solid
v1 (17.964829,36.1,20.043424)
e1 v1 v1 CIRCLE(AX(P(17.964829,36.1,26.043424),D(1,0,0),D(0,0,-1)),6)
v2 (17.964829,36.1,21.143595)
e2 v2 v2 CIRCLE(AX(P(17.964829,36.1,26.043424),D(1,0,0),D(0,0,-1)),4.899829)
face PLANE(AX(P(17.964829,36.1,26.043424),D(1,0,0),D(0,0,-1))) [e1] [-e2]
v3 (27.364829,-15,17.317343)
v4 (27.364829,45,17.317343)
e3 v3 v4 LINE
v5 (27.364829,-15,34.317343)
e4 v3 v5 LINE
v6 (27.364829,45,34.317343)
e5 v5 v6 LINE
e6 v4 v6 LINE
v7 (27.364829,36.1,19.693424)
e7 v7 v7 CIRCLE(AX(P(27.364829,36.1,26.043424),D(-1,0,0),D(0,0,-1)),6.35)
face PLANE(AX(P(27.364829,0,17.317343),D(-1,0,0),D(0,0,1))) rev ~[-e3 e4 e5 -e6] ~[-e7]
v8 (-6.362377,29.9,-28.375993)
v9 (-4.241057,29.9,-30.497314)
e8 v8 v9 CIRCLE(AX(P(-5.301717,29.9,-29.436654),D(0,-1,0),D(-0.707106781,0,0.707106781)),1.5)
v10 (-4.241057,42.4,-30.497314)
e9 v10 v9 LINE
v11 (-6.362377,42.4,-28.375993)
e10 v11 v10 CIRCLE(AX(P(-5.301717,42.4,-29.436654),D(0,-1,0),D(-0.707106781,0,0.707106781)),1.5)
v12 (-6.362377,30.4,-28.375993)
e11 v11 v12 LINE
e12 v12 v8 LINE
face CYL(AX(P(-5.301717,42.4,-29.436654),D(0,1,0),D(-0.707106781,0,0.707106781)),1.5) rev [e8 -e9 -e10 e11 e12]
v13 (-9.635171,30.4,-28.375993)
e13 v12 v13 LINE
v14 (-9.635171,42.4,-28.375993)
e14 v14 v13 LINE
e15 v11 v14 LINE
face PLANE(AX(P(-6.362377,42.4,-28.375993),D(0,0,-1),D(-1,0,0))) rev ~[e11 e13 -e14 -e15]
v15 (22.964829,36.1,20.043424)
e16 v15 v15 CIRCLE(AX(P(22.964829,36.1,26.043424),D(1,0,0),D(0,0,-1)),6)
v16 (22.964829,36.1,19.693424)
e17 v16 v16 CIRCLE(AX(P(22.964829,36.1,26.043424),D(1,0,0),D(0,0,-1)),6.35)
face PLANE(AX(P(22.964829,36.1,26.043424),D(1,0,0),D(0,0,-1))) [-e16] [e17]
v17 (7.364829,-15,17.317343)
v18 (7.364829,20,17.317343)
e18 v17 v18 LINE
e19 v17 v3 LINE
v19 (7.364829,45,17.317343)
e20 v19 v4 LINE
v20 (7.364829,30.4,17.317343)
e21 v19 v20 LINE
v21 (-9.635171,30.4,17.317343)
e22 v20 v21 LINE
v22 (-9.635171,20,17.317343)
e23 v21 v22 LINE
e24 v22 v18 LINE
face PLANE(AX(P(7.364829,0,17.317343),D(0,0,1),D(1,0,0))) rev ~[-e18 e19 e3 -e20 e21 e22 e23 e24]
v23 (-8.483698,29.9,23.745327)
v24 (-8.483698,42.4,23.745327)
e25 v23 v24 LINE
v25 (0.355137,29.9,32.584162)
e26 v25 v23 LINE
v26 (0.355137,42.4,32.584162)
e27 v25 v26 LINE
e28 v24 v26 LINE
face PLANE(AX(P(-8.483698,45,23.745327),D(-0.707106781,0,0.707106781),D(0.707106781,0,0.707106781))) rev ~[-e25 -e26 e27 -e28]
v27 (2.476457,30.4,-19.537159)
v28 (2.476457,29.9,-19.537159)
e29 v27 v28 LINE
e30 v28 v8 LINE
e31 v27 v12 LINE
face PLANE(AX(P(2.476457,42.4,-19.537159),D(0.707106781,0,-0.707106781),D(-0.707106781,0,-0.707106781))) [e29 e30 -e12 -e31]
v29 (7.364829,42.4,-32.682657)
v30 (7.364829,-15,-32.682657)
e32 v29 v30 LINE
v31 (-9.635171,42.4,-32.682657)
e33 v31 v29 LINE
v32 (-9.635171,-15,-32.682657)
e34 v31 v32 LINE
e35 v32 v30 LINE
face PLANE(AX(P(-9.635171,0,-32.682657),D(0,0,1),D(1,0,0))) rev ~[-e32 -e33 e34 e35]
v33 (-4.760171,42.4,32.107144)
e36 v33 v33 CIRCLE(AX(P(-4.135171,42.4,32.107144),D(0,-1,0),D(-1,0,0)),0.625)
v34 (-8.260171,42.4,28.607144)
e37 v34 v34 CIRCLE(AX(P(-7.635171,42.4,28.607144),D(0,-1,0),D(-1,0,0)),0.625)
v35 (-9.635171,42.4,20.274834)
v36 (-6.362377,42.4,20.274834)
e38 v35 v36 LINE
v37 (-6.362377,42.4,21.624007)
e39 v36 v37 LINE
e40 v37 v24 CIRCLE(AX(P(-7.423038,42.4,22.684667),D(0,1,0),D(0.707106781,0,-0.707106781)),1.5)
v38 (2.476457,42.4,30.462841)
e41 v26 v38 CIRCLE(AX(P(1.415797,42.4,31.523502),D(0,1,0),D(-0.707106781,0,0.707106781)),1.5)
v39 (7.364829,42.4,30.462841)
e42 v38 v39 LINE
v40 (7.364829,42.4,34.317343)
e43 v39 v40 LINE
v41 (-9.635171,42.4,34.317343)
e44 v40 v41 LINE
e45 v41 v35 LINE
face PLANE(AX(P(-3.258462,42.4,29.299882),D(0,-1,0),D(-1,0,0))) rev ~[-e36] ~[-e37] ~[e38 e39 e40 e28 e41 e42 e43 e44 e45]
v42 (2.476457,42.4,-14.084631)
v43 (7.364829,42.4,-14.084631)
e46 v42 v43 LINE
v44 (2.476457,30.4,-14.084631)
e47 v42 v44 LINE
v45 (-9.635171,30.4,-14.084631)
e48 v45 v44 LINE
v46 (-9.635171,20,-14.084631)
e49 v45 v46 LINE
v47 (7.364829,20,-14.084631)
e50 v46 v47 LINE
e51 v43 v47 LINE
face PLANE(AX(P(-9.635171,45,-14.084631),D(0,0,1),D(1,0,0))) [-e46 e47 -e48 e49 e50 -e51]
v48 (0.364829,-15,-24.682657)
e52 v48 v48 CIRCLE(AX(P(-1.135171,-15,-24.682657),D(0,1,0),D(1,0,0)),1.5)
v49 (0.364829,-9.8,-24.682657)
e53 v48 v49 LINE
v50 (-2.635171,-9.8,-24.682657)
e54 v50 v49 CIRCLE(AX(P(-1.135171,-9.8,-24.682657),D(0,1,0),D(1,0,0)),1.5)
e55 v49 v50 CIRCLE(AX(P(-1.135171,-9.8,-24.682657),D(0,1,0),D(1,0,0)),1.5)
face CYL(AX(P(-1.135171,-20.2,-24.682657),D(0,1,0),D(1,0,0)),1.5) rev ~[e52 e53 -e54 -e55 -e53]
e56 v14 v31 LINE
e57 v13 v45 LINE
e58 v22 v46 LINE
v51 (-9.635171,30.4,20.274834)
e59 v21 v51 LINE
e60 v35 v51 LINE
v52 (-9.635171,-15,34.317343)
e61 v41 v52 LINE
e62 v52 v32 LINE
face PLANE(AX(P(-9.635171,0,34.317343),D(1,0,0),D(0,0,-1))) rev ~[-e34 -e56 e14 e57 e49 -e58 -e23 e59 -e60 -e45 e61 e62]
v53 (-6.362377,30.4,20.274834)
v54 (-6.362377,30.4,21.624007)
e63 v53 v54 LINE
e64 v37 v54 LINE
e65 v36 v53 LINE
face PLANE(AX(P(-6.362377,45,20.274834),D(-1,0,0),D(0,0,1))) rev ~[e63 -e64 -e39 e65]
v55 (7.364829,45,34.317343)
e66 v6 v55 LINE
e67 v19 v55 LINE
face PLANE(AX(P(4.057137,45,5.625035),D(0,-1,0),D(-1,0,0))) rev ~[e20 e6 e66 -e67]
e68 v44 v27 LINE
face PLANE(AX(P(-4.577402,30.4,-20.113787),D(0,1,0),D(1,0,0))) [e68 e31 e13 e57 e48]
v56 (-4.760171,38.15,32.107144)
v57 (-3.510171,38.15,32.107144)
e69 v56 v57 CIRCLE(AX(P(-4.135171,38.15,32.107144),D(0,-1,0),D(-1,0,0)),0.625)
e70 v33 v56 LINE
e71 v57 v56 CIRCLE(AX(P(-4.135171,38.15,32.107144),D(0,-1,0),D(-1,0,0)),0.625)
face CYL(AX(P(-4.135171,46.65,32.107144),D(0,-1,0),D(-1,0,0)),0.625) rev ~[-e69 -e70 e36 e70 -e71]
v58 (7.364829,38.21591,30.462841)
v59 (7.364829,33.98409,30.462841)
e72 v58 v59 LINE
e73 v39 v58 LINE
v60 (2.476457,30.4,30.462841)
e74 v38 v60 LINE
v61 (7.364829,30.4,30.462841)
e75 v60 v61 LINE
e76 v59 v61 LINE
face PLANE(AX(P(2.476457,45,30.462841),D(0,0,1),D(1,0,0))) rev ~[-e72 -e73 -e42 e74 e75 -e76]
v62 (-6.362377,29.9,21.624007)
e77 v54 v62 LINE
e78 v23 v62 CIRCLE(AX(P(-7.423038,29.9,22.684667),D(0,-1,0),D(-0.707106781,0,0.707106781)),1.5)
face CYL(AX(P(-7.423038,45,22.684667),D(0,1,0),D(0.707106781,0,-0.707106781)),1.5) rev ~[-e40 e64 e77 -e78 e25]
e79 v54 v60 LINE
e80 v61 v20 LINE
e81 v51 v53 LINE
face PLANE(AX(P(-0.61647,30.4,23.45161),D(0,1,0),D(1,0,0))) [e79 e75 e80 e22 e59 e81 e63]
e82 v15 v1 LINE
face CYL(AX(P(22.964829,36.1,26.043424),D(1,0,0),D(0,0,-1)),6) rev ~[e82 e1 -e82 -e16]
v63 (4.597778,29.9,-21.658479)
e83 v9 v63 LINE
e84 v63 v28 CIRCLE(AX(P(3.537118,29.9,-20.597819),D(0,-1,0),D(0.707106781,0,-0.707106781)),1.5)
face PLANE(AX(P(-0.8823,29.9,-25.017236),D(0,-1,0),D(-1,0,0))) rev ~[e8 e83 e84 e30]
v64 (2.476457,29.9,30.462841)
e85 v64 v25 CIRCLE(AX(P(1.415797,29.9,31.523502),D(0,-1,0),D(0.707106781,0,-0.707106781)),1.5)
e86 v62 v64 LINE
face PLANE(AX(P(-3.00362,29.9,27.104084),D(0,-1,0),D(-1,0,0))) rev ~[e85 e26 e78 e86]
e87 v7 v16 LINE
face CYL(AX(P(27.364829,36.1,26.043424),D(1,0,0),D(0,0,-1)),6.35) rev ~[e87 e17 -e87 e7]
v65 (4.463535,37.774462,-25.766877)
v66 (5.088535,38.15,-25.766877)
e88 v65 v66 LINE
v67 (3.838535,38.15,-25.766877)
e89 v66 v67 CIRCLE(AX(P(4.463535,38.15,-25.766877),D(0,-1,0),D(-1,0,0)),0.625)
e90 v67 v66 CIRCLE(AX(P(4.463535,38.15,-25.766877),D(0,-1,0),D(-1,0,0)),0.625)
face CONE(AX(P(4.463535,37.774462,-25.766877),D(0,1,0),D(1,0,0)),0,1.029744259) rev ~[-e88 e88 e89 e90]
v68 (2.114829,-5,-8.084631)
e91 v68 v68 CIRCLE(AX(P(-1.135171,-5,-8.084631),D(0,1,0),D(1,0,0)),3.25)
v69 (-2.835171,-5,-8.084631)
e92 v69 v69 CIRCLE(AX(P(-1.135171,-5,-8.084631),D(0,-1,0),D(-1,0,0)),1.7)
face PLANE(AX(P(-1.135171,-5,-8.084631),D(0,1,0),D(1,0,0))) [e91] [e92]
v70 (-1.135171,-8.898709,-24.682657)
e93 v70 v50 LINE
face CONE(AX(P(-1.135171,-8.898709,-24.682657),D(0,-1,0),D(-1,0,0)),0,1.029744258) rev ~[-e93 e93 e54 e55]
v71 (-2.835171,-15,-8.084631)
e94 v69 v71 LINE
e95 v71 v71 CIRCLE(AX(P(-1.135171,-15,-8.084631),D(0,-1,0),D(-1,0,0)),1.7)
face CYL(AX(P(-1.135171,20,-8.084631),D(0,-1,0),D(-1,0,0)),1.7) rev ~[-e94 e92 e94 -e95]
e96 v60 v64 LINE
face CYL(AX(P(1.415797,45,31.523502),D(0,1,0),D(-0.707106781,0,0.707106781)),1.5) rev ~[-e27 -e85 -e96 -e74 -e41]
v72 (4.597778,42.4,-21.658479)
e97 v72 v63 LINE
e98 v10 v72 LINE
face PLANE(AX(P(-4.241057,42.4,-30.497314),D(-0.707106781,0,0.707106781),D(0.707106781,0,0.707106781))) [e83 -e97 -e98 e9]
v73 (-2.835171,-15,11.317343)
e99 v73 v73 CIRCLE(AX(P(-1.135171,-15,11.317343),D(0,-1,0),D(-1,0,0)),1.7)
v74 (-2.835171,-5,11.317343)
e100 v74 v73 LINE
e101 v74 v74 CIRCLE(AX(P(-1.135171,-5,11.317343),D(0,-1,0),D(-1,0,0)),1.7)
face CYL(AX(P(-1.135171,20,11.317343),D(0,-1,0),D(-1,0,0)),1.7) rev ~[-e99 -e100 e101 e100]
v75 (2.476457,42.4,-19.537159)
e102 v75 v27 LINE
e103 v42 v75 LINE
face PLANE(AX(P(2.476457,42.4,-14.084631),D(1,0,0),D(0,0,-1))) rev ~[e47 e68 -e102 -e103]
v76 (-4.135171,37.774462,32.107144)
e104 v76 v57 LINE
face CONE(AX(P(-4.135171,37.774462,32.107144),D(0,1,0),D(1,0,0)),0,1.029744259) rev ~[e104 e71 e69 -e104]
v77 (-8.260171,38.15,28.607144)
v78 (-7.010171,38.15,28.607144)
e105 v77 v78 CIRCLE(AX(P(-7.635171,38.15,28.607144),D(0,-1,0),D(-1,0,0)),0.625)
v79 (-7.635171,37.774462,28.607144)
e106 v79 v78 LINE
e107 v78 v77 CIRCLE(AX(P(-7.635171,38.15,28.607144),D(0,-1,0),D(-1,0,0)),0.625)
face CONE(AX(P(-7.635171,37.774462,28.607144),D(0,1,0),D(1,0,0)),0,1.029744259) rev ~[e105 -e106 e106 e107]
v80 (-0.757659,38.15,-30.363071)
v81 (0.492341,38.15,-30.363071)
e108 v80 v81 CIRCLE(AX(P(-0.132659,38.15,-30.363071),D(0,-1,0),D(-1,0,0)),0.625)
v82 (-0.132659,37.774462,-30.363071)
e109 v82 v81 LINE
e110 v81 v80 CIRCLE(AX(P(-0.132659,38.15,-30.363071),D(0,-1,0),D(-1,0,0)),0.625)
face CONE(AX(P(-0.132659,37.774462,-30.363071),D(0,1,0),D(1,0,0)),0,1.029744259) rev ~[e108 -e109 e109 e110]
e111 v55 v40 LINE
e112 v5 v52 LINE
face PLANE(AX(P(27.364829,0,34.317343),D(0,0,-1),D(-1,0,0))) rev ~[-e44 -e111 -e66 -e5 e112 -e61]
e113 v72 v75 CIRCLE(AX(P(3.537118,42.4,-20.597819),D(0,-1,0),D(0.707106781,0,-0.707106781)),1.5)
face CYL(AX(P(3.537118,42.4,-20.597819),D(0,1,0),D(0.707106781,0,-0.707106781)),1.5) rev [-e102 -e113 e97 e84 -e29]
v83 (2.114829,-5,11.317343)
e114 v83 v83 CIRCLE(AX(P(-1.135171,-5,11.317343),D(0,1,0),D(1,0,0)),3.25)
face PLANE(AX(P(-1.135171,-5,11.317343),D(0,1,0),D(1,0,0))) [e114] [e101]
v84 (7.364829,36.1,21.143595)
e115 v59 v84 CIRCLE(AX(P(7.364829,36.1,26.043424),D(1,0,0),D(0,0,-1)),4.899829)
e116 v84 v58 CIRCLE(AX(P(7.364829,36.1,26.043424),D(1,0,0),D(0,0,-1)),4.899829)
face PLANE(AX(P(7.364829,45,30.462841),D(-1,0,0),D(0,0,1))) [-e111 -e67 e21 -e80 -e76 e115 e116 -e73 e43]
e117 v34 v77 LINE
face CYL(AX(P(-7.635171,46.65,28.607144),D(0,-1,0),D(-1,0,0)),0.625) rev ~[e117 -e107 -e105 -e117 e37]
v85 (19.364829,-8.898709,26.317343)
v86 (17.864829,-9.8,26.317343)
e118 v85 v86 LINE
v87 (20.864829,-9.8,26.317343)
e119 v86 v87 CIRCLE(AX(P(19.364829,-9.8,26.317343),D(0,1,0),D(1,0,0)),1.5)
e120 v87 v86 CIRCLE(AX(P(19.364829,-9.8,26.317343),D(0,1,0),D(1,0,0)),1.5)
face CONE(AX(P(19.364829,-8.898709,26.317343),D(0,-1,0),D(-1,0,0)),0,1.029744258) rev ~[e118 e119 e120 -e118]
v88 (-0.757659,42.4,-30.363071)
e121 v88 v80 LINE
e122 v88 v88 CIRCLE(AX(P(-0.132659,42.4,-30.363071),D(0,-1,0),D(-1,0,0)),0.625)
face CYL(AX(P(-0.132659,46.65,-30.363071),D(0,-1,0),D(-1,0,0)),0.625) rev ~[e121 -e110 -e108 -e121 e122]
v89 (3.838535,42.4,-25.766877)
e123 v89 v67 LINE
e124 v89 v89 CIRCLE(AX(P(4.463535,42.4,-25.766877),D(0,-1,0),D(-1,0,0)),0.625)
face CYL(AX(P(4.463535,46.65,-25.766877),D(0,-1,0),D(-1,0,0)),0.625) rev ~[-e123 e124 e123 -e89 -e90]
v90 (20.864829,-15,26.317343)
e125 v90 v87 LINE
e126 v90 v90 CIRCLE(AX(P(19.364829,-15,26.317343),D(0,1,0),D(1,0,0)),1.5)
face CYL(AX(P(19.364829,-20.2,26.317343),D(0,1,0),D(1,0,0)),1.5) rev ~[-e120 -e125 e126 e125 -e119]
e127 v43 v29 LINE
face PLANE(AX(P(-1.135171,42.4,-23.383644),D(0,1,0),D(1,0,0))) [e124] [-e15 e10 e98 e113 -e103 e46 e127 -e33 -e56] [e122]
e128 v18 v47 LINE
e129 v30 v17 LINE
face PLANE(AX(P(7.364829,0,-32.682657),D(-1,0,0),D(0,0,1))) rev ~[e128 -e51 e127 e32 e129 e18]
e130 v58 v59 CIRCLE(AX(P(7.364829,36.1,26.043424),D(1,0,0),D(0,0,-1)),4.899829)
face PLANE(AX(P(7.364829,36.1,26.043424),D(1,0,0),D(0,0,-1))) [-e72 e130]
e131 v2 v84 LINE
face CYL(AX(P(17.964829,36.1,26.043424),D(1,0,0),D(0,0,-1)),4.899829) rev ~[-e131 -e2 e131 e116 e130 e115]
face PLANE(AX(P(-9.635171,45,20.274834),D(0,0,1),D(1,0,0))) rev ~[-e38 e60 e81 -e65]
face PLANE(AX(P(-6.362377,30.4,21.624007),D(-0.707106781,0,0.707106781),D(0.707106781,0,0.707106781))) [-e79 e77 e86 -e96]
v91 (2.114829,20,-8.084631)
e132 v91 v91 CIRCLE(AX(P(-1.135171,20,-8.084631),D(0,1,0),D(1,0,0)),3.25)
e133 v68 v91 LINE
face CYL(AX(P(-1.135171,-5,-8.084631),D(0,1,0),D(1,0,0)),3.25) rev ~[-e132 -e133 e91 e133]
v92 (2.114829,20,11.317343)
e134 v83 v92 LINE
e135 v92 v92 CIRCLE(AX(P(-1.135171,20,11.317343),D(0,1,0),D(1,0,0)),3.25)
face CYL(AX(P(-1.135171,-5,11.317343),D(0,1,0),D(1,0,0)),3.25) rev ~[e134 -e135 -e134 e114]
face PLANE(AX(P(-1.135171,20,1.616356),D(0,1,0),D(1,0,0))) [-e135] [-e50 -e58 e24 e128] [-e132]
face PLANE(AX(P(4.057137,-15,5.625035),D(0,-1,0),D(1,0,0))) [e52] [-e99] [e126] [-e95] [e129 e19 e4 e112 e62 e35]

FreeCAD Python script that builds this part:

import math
import FreeCAD as App
import Part
import Sketcher

V = App.Vector
Q = App.Units.Quantity


def add_polygon(sketch, points):
    """Adds a closed chain of lines whose ends are joined by coincident constraints."""
    first, n = sketch.GeometryCount, len(points)
    for a, b in zip(points, points[1:] + points[:1]):
        sketch.addGeometry(Part.LineSegment(App.Vector(*a, 0), App.Vector(*b, 0)), False)
    for i in range(n):
        sketch.addConstraint(Sketcher.Constraint("Coincident", first + i, 2, first + (i + 1) % n, 1))

doc = App.newDocument("Part")
params = doc.addObject("Spreadsheet::Sheet", "Params")
for row, (alias, value) in enumerate([
    ("sketch1_width", "37 mm"),
    ("sketch1_width2", "20 mm"),
    ("sketch1_height", "50 mm"),
    ("pad1_length", "45 mm"),
    ("sketch2_width", "17 mm"),
    ("pocket1_length", "25 mm"),
    ("sketch3_width", "37 mm"),
    ("sketch3_width2", "17 mm"),
    ("sketch3_height", "67 mm"),
    ("pad2_length", "15 mm"),
    ("sketch4_width", "17 mm"),
    ("pocket2_length", "2.6 mm"),
    ("sketch5_length", "12.5 mm"),
    ("pocket3_length", "12 mm"),
    ("sketch6_radius", "1.5 mm"),
    ("sketch6_width", "17 mm"),
    ("sketch6_length", "12.5 mm"),
    ("pocket4_length", "14.6 mm"),
    ("sketch7_diameter", "12.7 mm"),
    ("pocket5_length", "4.4 mm"),
    ("sketch8_diameter", "12 mm"),
    ("pocket6_length", "5 mm"),
    ("sketch9_diameter", "12.7 mm"),
    ("hole_diameter", "12.7 mm"),
    ("hole_depth", "3 mm"),
    ("sketch10_radius", "1.5 mm"),
    ("sketch10_length", "12.5 mm"),
    ("pocket7_length", "12.5 mm"),
    ("sketch11_radius", "1.5 mm"),
    ("sketch11_length", "12.5 mm"),
    ("pocket8_length", "0.5 mm"),
    ("sketch12_radius", "1.5 mm"),
    ("sketch12_width", "17 mm"),
    ("sketch12_length", "12.5 mm"),
    ("pocket9_length", "2.6 mm"),
    ("pocket10_length", "10.6 mm"),
    ("sketch14_diameter", "3.4 mm"),
    ("hole2_diameter", "3.4 mm"),
    ("hole2_depth", "35 mm"),
    ("hole2_cbore_diameter", "6.5 mm"),
    ("hole2_cbore_depth", "25 mm"),
    ("sketch15_diameter", "3 mm"),
    ("hole3_diameter", "3 mm"),
    ("hole3_depth", "5.2 mm"),
    ("sketch16_diameter", "1.25 mm"),
    ("hole4_diameter", "1.25 mm"),
    ("hole4_depth", "4.25 mm"),
    ("sketch17_diameter", "1.25 mm"),
    ("hole5_diameter", "1.25 mm"),
    ("hole5_depth", "4.25 mm"),
], start=1):
    params.set(f"A{row}", alias)
    params.set(f"B{row}", "=" + value)
    params.setAlias(f"B{row}", alias)

body = doc.addObject("PartDesign::Body", "Body")

# Sketch on XZ plane
sketch1 = body.newObject("Sketcher::SketchObject", "Sketch")
sketch1.AttachmentSupport = (doc.getObject("XZ_Plane"), [""])
sketch1.MapMode = "FlatFace"
add_polygon(sketch1, [(-10, 34), (27, 34), (27, 17), (7, 17), (7, -33), (-10, -33)])  # lines 0-5
sketch1.addConstraint(Sketcher.Constraint("Horizontal", 0))
sketch1.addConstraint(Sketcher.Constraint("Vertical", 1))
sketch1.addConstraint(Sketcher.Constraint("Horizontal", 2))
sketch1.addConstraint(Sketcher.Constraint("Vertical", 3))
sketch1.addConstraint(Sketcher.Constraint("Horizontal", 4))
sketch1.addConstraint(Sketcher.Constraint("Vertical", 5))
sketch1.addConstraint(Sketcher.Constraint("Equal", 4, 1))
sketch1.addConstraint(Sketcher.Constraint("DistanceX", 0, 1, 0, 2, Q("37 mm")))
sketch1.addConstraint(Sketcher.Constraint("DistanceX", 2, 2, 2, 1, Q("20 mm")))
sketch1.addConstraint(Sketcher.Constraint("DistanceY", 3, 2, 3, 1, Q("50 mm")))
sketch1.addConstraint(Sketcher.Constraint("DistanceX", -1, 1, 0, 2, Q("27.364829 mm")))
sketch1.addConstraint(Sketcher.Constraint("DistanceY", -1, 1, 0, 2, Q("34.317343 mm")))
sketch1.setExpression("Constraints[13]", "Params.sketch1_width")
sketch1.setExpression("Constraints[14]", "Params.sketch1_width2")
sketch1.setExpression("Constraints[15]", "Params.sketch1_height")
pad1 = body.newObject("PartDesign::Pad", "Pad")
pad1.Profile = sketch1
pad1.setExpression("Length", "Params.pad1_length")
pad1.Reversed = True

# Sketch on XZ plane
sketch2 = body.newObject("Sketcher::SketchObject", "Sketch001")
sketch2.AttachmentSupport = (doc.getObject("XZ_Plane"), [""])
sketch2.MapMode = "FlatFace"
sketch2.AttachmentOffset = App.Placement(V(0, 0, -45), App.Rotation())
add_polygon(sketch2, [(-10, -14), (-10, 17), (7, 17), (7, -14)])  # lines 0-3
sketch2.addConstraint(Sketcher.Constraint("Vertical", 0))
sketch2.addConstraint(Sketcher.Constraint("Horizontal", 1))
sketch2.addConstraint(Sketcher.Constraint("Vertical", 2))
sketch2.addConstraint(Sketcher.Constraint("Horizontal", 3))
sketch2.addConstraint(Sketcher.Constraint("DistanceX", 1, 1, 1, 2, Q("17 mm")))
sketch2.addConstraint(Sketcher.Constraint("DistanceY", 0, 1, 0, 2, Q("31.401974 mm")))
sketch2.addConstraint(Sketcher.Constraint("DistanceX", 0, 2, -1, 1, Q("9.635171 mm")))
sketch2.addConstraint(Sketcher.Constraint("DistanceY", 2, 2, -1, 1, Q("14.084631 mm")))
sketch2.setExpression("Constraints[8]", "Params.sketch2_width")
pocket1 = body.newObject("PartDesign::Pocket", "Pocket")
pocket1.Profile = sketch2
pocket1.setExpression("Length", "Params.pocket1_length")
pocket1.Reversed = True

# Sketch on XZ plane
sketch3 = body.newObject("Sketcher::SketchObject", "Sketch002")
sketch3.AttachmentSupport = (doc.getObject("XZ_Plane"), [""])
sketch3.MapMode = "FlatFace"
add_polygon(sketch3, [(27, 34), (-10, 34), (-10, -33), (7, -33), (7, 17), (27, 17)])  # lines 0-5
sketch3.addConstraint(Sketcher.Constraint("Horizontal", 0))
sketch3.addConstraint(Sketcher.Constraint("Vertical", 1))
sketch3.addConstraint(Sketcher.Constraint("Horizontal", 2))
sketch3.addConstraint(Sketcher.Constraint("Vertical", 3))
sketch3.addConstraint(Sketcher.Constraint("Horizontal", 4))
sketch3.addConstraint(Sketcher.Constraint("Vertical", 5))
sketch3.addConstraint(Sketcher.Constraint("Equal", 2, 5))
sketch3.addConstraint(Sketcher.Constraint("DistanceX", 0, 2, 0, 1, Q("37 mm")))
sketch3.addConstraint(Sketcher.Constraint("DistanceX", 2, 1, 2, 2, Q("17 mm")))
sketch3.addConstraint(Sketcher.Constraint("DistanceY", 1, 2, 1, 1, Q("67 mm")))
sketch3.addConstraint(Sketcher.Constraint("DistanceX", 0, 2, -1, 1, Q("9.635171 mm")))
sketch3.addConstraint(Sketcher.Constraint("DistanceY", -1, 1, 0, 2, Q("34.317343 mm")))
sketch3.setExpression("Constraints[13]", "Params.sketch3_width")
sketch3.setExpression("Constraints[14]", "Params.sketch3_width2")
sketch3.setExpression("Constraints[15]", "Params.sketch3_height")
pad2 = body.newObject("PartDesign::Pad", "Pad001")
pad2.Profile = sketch3
pad2.setExpression("Length", "Params.pad2_length")

# Sketch on XZ plane
sketch4 = body.newObject("Sketcher::SketchObject", "Sketch003")
sketch4.AttachmentSupport = (doc.getObject("XZ_Plane"), [""])
sketch4.MapMode = "FlatFace"
sketch4.AttachmentOffset = App.Placement(V(0, 0, -45), App.Rotation())
add_polygon(sketch4, [(-10, -33), (-10, -14), (7, -14), (7, -33)])  # lines 0-3
sketch4.addConstraint(Sketcher.Constraint("Vertical", 0))
sketch4.addConstraint(Sketcher.Constraint("Horizontal", 1))
sketch4.addConstraint(Sketcher.Constraint("Vertical", 2))
sketch4.addConstraint(Sketcher.Constraint("Horizontal", 3))
sketch4.addConstraint(Sketcher.Constraint("DistanceX", 1, 1, 1, 2, Q("17 mm")))
sketch4.addConstraint(Sketcher.Constraint("DistanceY", 0, 1, 0, 2, Q("18.598026 mm")))
sketch4.addConstraint(Sketcher.Constraint("DistanceX", 0, 2, -1, 1, Q("9.635171 mm")))
sketch4.addConstraint(Sketcher.Constraint("DistanceY", 0, 2, -1, 1, Q("14.084631 mm")))
sketch4.setExpression("Constraints[8]", "Params.sketch4_width")
pocket2 = body.newObject("PartDesign::Pocket", "Pocket001")
pocket2.Profile = sketch4
pocket2.setExpression("Length", "Params.pocket2_length")
pocket2.Reversed = True

# Sketch on XZ plane
sketch5 = body.newObject("Sketcher::SketchObject", "Sketch004")
sketch5.AttachmentSupport = (doc.getObject("XZ_Plane"), [""])
sketch5.MapMode = "FlatFace"
sketch5.AttachmentOffset = App.Placement(V(0, 0, -42.4), App.Rotation())
add_polygon(sketch5, [(-9.6, -28.4), (-9.6, -14.1), (2.5, -14.1), (2.5, -19.5), (-6.4, -28.4)])  # lines 0-4
sketch5.addConstraint(Sketcher.Constraint("Vertical", 0))
sketch5.addConstraint(Sketcher.Constraint("Horizontal", 1))
sketch5.addConstraint(Sketcher.Constraint("Vertical", 2))
sketch5.addConstraint(Sketcher.Constraint("Horizontal", 4))
sketch5.addConstraint(Sketcher.Constraint("Angle", 3, Q("-135 deg")))
sketch5.addConstraint(Sketcher.Constraint("Distance", 3, Q("12.5 mm")))
sketch5.addConstraint(Sketcher.Constraint("DistanceX", 1, 1, 1, 2, Q("12.111628 mm")))
sketch5.addConstraint(Sketcher.Constraint("DistanceY", 0, 1, 0, 2, Q("14.291362 mm")))
sketch5.addConstraint(Sketcher.Constraint("DistanceX", 0, 2, -1, 1, Q("9.635171 mm")))
sketch5.addConstraint(Sketcher.Constraint("DistanceY", 0, 2, -1, 1, Q("14.084631 mm")))
sketch5.setExpression("Constraints[10]", "Params.sketch5_length")
pocket3 = body.newObject("PartDesign::Pocket", "Pocket002")
pocket3.Profile = sketch5
pocket3.setExpression("Length", "Params.pocket3_length")
pocket3.Reversed = True

# Sketch on XZ plane
sketch6 = body.newObject("Sketcher::SketchObject", "Sketch005")
sketch6.AttachmentSupport = (doc.getObject("XZ_Plane"), [""])
sketch6.MapMode = "FlatFace"
sketch6.AttachmentOffset = App.Placement(V(0, 0, -45), App.Rotation())
sketch6.addGeometry(Part.LineSegment(V(2.5, 30.5, 0), V(7.4, 30.5, 0)), False)
sketch6.addGeometry(Part.LineSegment(V(7.4, 30.5, 0), V(7.4, 17.3, 0)), False)
sketch6.addGeometry(Part.LineSegment(V(7.4, 17.3, 0), V(-9.6, 17.3, 0)), False)
sketch6.addGeometry(Part.LineSegment(V(-9.6, 17.3, 0), V(-9.6, 20.3, 0)), False)
sketch6.addGeometry(Part.LineSegment(V(-9.6, 20.3, 0), V(-6.4, 20.3, 0)), False)
sketch6.addGeometry(Part.LineSegment(V(-6.4, 20.3, 0), V(-6.4, 21.6, 0)), False)
sketch6.addGeometry(Part.ArcOfCircle(Part.Circle(V(-7.4, 22.7, 0), V(0, 0, 1), 1.5), math.radians(135), math.radians(315)), False)
sketch6.addGeometry(Part.LineSegment(V(-8.5, 23.7, 0), V(0.4, 32.6, 0)), False)
sketch6.addGeometry(Part.ArcOfCircle(Part.Circle(V(1.4, 31.5, 0), V(0, 0, 1), 1.5), math.radians(-45), math.radians(135)), False)
sketch6.addConstraint(Sketcher.Constraint("Coincident", 0, 2, 1, 1))
sketch6.addConstraint(Sketcher.Constraint("Coincident", 1, 2, 2, 1))
sketch6.addConstraint(Sketcher.Constraint("Coincident", 2, 2, 3, 1))
sketch6.addConstraint(Sketcher.Constraint("Coincident", 3, 2, 4, 1))
sketch6.addConstraint(Sketcher.Constraint("Coincident", 4, 2, 5, 1))
sketch6.addConstraint(Sketcher.Constraint("Coincident", 5, 2, 6, 2))
sketch6.addConstraint(Sketcher.Constraint("Tangent", 6, 1, 7, 1))
sketch6.addConstraint(Sketcher.Constraint("Tangent", 7, 2, 8, 2))
sketch6.addConstraint(Sketcher.Constraint("Coincident", 8, 1, 0, 1))
sketch6.addConstraint(Sketcher.Constraint("Horizontal", 0))
sketch6.addConstraint(Sketcher.Constraint("Vertical", 1))
sketch6.addConstraint(Sketcher.Constraint("Horizontal", 2))
sketch6.addConstraint(Sketcher.Constraint("Vertical", 3))
sketch6.addConstraint(Sketcher.Constraint("Horizontal", 4))
sketch6.addConstraint(Sketcher.Constraint("Vertical", 5))
sketch6.addConstraint(Sketcher.Constraint("Equal", 6, 8))
sketch6.addConstraint(Sketcher.Constraint("Radius", 6, Q("1.5 mm")))
sketch6.addConstraint(Sketcher.Constraint("DistanceX", 2, 2, 2, 1, Q("17 mm")))
sketch6.addConstraint(Sketcher.Constraint("Angle", 7, Q("45 deg")))
sketch6.addConstraint(Sketcher.Constraint("Distance", 7, Q("12.5 mm")))
sketch6.addConstraint(Sketcher.Constraint("DistanceY", 1, 2, 1, 1, Q("13.145498 mm")))
sketch6.addConstraint(Sketcher.Constraint("DistanceX", 0, 1, 0, 2, Q("4.888372 mm")))
sketch6.addConstraint(Sketcher.Constraint("DistanceY", 3, 1, 3, 2, Q("2.957491 mm")))
sketch6.addConstraint(Sketcher.Constraint("DistanceY", -1, 1, 8, 3, Q("31.523502 mm")))
sketch6.addConstraint(Sketcher.Constraint("DistanceX", 4, 1, 4, 2, Q("3.272794 mm")))
sketch6.addConstraint(Sketcher.Constraint("DistanceX", -1, 1, 0, 2, Q("7.364829 mm")))
sketch6.addConstraint(Sketcher.Constraint("DistanceY", -1, 1, 0, 2, Q("30.462841 mm")))
sketch6.setExpression("Constraints[16]", "Params.sketch6_radius")
sketch6.setExpression("Constraints[17]", "Params.sketch6_width")
sketch6.setExpression("Constraints[19]", "Params.sketch6_length")
pocket4 = body.newObject("PartDesign::Pocket", "Pocket003")
pocket4.Profile = sketch6
pocket4.setExpression("Length", "Params.pocket4_length")
pocket4.Reversed = True

# Sketch on YZ plane
sketch7 = body.newObject("Sketcher::SketchObject", "Sketch006")
sketch7.AttachmentSupport = (doc.getObject("YZ_Plane"), [""])
sketch7.MapMode = "FlatFace"
sketch7.AttachmentOffset = App.Placement(V(0, 0, 27.364829), App.Rotation())
sketch7.addGeometry(Part.Circle(V(36, 26, 0), V(0, 0, 1), 6), False)
sketch7.addConstraint(Sketcher.Constraint("Diameter", 0, Q("12.7 mm")))
sketch7.addConstraint(Sketcher.Constraint("DistanceX", -1, 1, 0, 3, Q("36.1 mm")))
sketch7.addConstraint(Sketcher.Constraint("DistanceY", -1, 1, 0, 3, Q("26.043424 mm")))
sketch7.setExpression("Constraints[0]", "Params.sketch7_diameter")
pocket5 = body.newObject("PartDesign::Pocket", "Pocket004")
pocket5.Profile = sketch7
pocket5.setExpression("Length", "Params.pocket5_length")

# Sketch on YZ plane
sketch8 = body.newObject("Sketcher::SketchObject", "Sketch007")
sketch8.AttachmentSupport = (doc.getObject("YZ_Plane"), [""])
sketch8.MapMode = "FlatFace"
sketch8.AttachmentOffset = App.Placement(V(0, 0, 22.964829), App.Rotation())
sketch8.addGeometry(Part.Circle(V(36, 26, 0), V(0, 0, 1), 6), False)
sketch8.addConstraint(Sketcher.Constraint("Diameter", 0, Q("12 mm")))
sketch8.addConstraint(Sketcher.Constraint("DistanceX", -1, 1, 0, 3, Q("36.1 mm")))
sketch8.addConstraint(Sketcher.Constraint("DistanceY", -1, 1, 0, 3, Q("26.043424 mm")))
sketch8.setExpression("Constraints[0]", "Params.sketch8_diameter")
pocket6 = body.newObject("PartDesign::Pocket", "Pocket005")
pocket6.Profile = sketch8
pocket6.setExpression("Length", "Params.pocket6_length")

# Sketch on YZ plane
sketch9 = body.newObject("Sketcher::SketchObject", "Sketch008")
sketch9.AttachmentSupport = (doc.getObject("YZ_Plane"), [""])
sketch9.MapMode = "FlatFace"
sketch9.AttachmentOffset = App.Placement(V(0, 0, 27.364829), App.Rotation())
sketch9.addGeometry(Part.Circle(V(36, 26, 0), V(0, 0, 1), 6), False)
sketch9.addConstraint(Sketcher.Constraint("Diameter", 0, Q("12.7 mm")))
sketch9.addConstraint(Sketcher.Constraint("DistanceX", -1, 1, 0, 3, Q("36.1 mm")))
sketch9.addConstraint(Sketcher.Constraint("DistanceY", -1, 1, 0, 3, Q("26.043424 mm")))
sketch9.setExpression("Constraints[0]", "Params.sketch9_diameter")
doc.recompute()
hole = body.newObject("PartDesign::Hole", "Hole")
hole.Profile = sketch9
hole.ThreadType = "None"
hole.setExpression("Diameter", "Params.hole_diameter")
hole.DepthType = "Dimension"
hole.setExpression("Depth", "Params.hole_depth")
hole.DrillPoint = "Angled"
hole.DrillPointAngle = 118

# Sketch on XZ plane
sketch10 = body.newObject("Sketcher::SketchObject", "Sketch009")
sketch10.AttachmentSupport = (doc.getObject("XZ_Plane"), [""])
sketch10.MapMode = "FlatFace"
sketch10.AttachmentOffset = App.Placement(V(0, 0, -42.4), App.Rotation())
sketch10.addGeometry(Part.LineSegment(V(4.6, -21.7, 0), V(-4.2, -30.5, 0)), False)
sketch10.addGeometry(Part.ArcOfCircle(Part.Circle(V(-5.3, -29.4, 0), V(0, 0, 1), 1.5), math.radians(135), math.radians(315)), False)
sketch10.addGeometry(Part.LineSegment(V(-6.4, -28.4, 0), V(2.5, -19.5, 0)), False)
sketch10.addGeometry(Part.ArcOfCircle(Part.Circle(V(3.5, -20.6, 0), V(0, 0, 1), 1.5), math.radians(-45), math.radians(135)), False)
sketch10.addConstraint(Sketcher.Constraint("Tangent", 0, 2, 1, 2))
sketch10.addConstraint(Sketcher.Constraint("Tangent", 1, 1, 2, 1))
sketch10.addConstraint(Sketcher.Constraint("Tangent", 2, 2, 3, 2))
sketch10.addConstraint(Sketcher.Constraint("Tangent", 3, 1, 0, 1))
sketch10.addConstraint(Sketcher.Constraint("Equal", 1, 3))
sketch10.addConstraint(Sketcher.Constraint("Radius", 1, Q("1.5 mm")))
sketch10.addConstraint(Sketcher.Constraint("Angle", 0, Q("-135 deg")))
sketch10.addConstraint(Sketcher.Constraint("Distance", 0, Q("12.5 mm")))
sketch10.addConstraint(Sketcher.Constraint("DistanceY", 3, 3, -1, 1, Q("20.597819 mm")))
sketch10.addConstraint(Sketcher.Constraint("DistanceX", 1, 3, -1, 1, Q("5.301717 mm")))
sketch10.setExpression("Constraints[5]", "Params.sketch10_radius")
sketch10.setExpression("Constraints[7]", "Params.sketch10_length")
pocket7 = body.newObject("PartDesign::Pocket", "Pocket006")
pocket7.Profile = sketch10
pocket7.setExpression("Length", "Params.pocket7_length")
pocket7.Reversed = True

# Sketch on XZ plane
sketch11 = body.newObject("Sketcher::SketchObject", "Sketch010")
sketch11.AttachmentSupport = (doc.getObject("XZ_Plane"), [""])
sketch11.MapMode = "FlatFace"
sketch11.AttachmentOffset = App.Placement(V(0, 0, -30.4), App.Rotation())
sketch11.addGeometry(Part.LineSegment(V(2.5, 30.5, 0), V(-6.4, 21.6, 0)), False)
sketch11.addGeometry(Part.ArcOfCircle(Part.Circle(V(-7.4, 22.7, 0), V(0, 0, 1), 1.5), math.radians(135), math.radians(315)), False)
sketch11.addGeometry(Part.LineSegment(V(-8.5, 23.7, 0), V(0.4, 32.6, 0)), False)
sketch11.addGeometry(Part.ArcOfCircle(Part.Circle(V(1.4, 31.5, 0), V(0, 0, 1), 1.5), math.radians(-45), math.radians(135)), False)
sketch11.addConstraint(Sketcher.Constraint("Tangent", 0, 2, 1, 2))
sketch11.addConstraint(Sketcher.Constraint("Tangent", 1, 1, 2, 1))
sketch11.addConstraint(Sketcher.Constraint("Tangent", 2, 2, 3, 2))
sketch11.addConstraint(Sketcher.Constraint("Tangent", 3, 1, 0, 1))
sketch11.addConstraint(Sketcher.Constraint("Equal", 1, 3))
sketch11.addConstraint(Sketcher.Constraint("Radius", 1, Q("1.5 mm")))
sketch11.addConstraint(Sketcher.Constraint("Angle", 0, Q("-135 deg")))
sketch11.addConstraint(Sketcher.Constraint("Distance", 0, Q("12.5 mm")))
sketch11.addConstraint(Sketcher.Constraint("DistanceY", -1, 1, 3, 3, Q("31.523502 mm")))
sketch11.addConstraint(Sketcher.Constraint("DistanceX", 1, 3, -1, 1, Q("7.423038 mm")))
sketch11.setExpression("Constraints[5]", "Params.sketch11_radius")
sketch11.setExpression("Constraints[7]", "Params.sketch11_length")
pocket8 = body.newObject("PartDesign::Pocket", "Pocket007")
pocket8.Profile = sketch11
pocket8.setExpression("Length", "Params.pocket8_length")
pocket8.Reversed = True

# Sketch on XZ plane
sketch12 = body.newObject("Sketcher::SketchObject", "Sketch011")
sketch12.AttachmentSupport = (doc.getObject("XZ_Plane"), [""])
sketch12.MapMode = "FlatFace"
sketch12.AttachmentOffset = App.Placement(V(0, 0, -45), App.Rotation())
sketch12.addGeometry(Part.LineSegment(V(7.4, 34.3, 0), V(7.4, 30.5, 0)), False)
sketch12.addGeometry(Part.LineSegment(V(7.4, 30.5, 0), V(2.5, 30.5, 0)), False)
sketch12.addGeometry(Part.ArcOfCircle(Part.Circle(V(1.4, 31.5, 0), V(0, 0, 1), 1.5), math.radians(-45), math.radians(135)), False)
sketch12.addGeometry(Part.LineSegment(V(0.4, 32.6, 0), V(-8.5, 23.7, 0)), False)
sketch12.addGeometry(Part.ArcOfCircle(Part.Circle(V(-7.4, 22.7, 0), V(0, 0, 1), 1.5), math.radians(135), math.radians(315)), False)
sketch12.addGeometry(Part.LineSegment(V(-6.4, 21.6, 0), V(-6.4, 20.3, 0)), False)
sketch12.addGeometry(Part.LineSegment(V(-6.4, 20.3, 0), V(-9.6, 20.3, 0)), False)
sketch12.addGeometry(Part.LineSegment(V(-9.6, 20.3, 0), V(-9.6, 34.3, 0)), False)
sketch12.addGeometry(Part.LineSegment(V(-9.6, 34.3, 0), V(7.4, 34.3, 0)), False)
sketch12.addConstraint(Sketcher.Constraint("Coincident", 0, 2, 1, 1))
sketch12.addConstraint(Sketcher.Constraint("Coincident", 1, 2, 2, 1))
sketch12.addConstraint(Sketcher.Constraint("Tangent", 2, 2, 3, 1))
sketch12.addConstraint(Sketcher.Constraint("Tangent", 3, 2, 4, 1))
sketch12.addConstraint(Sketcher.Constraint("Coincident", 4, 2, 5, 1))
sketch12.addConstraint(Sketcher.Constraint("Coincident", 5, 2, 6, 1))
sketch12.addConstraint(Sketcher.Constraint("Coincident", 6, 2, 7, 1))
sketch12.addConstraint(Sketcher.Constraint("Coincident", 7, 2, 8, 1))
sketch12.addConstraint(Sketcher.Constraint("Coincident", 8, 2, 0, 1))
sketch12.addConstraint(Sketcher.Constraint("Vertical", 0))
sketch12.addConstraint(Sketcher.Constraint("Horizontal", 1))
sketch12.addConstraint(Sketcher.Constraint("Vertical", 5))
sketch12.addConstraint(Sketcher.Constraint("Horizontal", 6))
sketch12.addConstraint(Sketcher.Constraint("Vertical", 7))
sketch12.addConstraint(Sketcher.Constraint("Horizontal", 8))
sketch12.addConstraint(Sketcher.Constraint("Equal", 2, 4))
sketch12.addConstraint(Sketcher.Constraint("Radius", 2, Q("1.5 mm")))
sketch12.addConstraint(Sketcher.Constraint("DistanceX", 8, 1, 8, 2, Q("17 mm")))
sketch12.addConstraint(Sketcher.Constraint("Angle", 3, Q("-135 deg")))
sketch12.addConstraint(Sketcher.Constraint("Distance", 3, Q("12.5 mm")))
sketch12.addConstraint(Sketcher.Constraint("DistanceY", 0, 2, 0, 1, Q("3.854502 mm")))
sketch12.addConstraint(Sketcher.Constraint("DistanceX", 1, 2, 1, 1, Q("4.888372 mm")))
sketch12.addConstraint(Sketcher.Constraint("DistanceY", 7, 1, 7, 2, Q("14.042509 mm")))
sketch12.addConstraint(Sketcher.Constraint("DistanceY", -1, 1, 2, 3, Q("31.523502 mm")))
sketch12.addConstraint(Sketcher.Constraint("DistanceX", 6, 2, 6, 1, Q("3.272794 mm")))
sketch12.addConstraint(Sketcher.Constraint("DistanceX", -1, 1, 0, 2, Q("7.364829 mm")))
sketch12.addConstraint(Sketcher.Constraint("DistanceY", -1, 1, 0, 2, Q("30.462841 mm")))
sketch12.setExpression("Constraints[16]", "Params.sketch12_radius")
sketch12.setExpression("Constraints[17]", "Params.sketch12_width")
sketch12.setExpression("Constraints[19]", "Params.sketch12_length")
pocket9 = body.newObject("PartDesign::Pocket", "Pocket008")
pocket9.Profile = sketch12
pocket9.setExpression("Length", "Params.pocket9_length")
pocket9.Reversed = True

# Sketch on YZ plane
sketch13 = body.newObject("Sketcher::SketchObject", "Sketch012")
sketch13.AttachmentSupport = (doc.getObject("YZ_Plane"), [""])
sketch13.MapMode = "FlatFace"
sketch13.AttachmentOffset = App.Placement(V(0, 0, 17.964829), App.Rotation())
sketch13.addGeometry(Part.Circle(V(36.1, 26, 0), V(0, 0, 1), 4.9), False)
sketch13.addConstraint(Sketcher.Constraint("DistanceX", -1, 1, 0, 3, Q("36.1 mm")))
sketch13.addConstraint(Sketcher.Constraint("Diameter", 0, Q("9.799658 mm")))
sketch13.addConstraint(Sketcher.Constraint("DistanceY", -1, 1, 0, 3, Q("26.043424 mm")))
pocket10 = body.newObject("PartDesign::Pocket", "Pocket009")
pocket10.Profile = sketch13
pocket10.setExpression("Length", "Params.pocket10_length")

# Sketch on XZ plane
sketch14 = body.newObject("Sketcher::SketchObject", "Sketch013")
sketch14.AttachmentSupport = (doc.getObject("XZ_Plane"), [""])
sketch14.MapMode = "FlatFace"
sketch14.AttachmentOffset = App.Placement(V(0, 0, -20), App.Rotation())
sketch14.addGeometry(Part.Circle(V(-1.1, -8.1, 0), V(0, 0, 1), 1.7), False)
sketch14.addGeometry(Part.Circle(V(-1.1, 11.3, 0), V(0, 0, 1), 1.7), False)
sketch14.addConstraint(Sketcher.Constraint("Equal", 0, 1))
sketch14.addConstraint(Sketcher.Constraint("Vertical", 0, 3, 1, 3))
sketch14.addConstraint(Sketcher.Constraint("Diameter", 0, Q("3.4 mm")))
sketch14.addConstraint(Sketcher.Constraint("DistanceX", 0, 3, -1, 1, Q("1.135171 mm")))
sketch14.addConstraint(Sketcher.Constraint("DistanceY", 0, 3, -1, 1, Q("8.084631 mm")))
sketch14.addConstraint(Sketcher.Constraint("DistanceY", -1, 1, 1, 3, Q("11.317343 mm")))
sketch14.setExpression("Constraints[2]", "Params.sketch14_diameter")
doc.recompute()
hole2 = body.newObject("PartDesign::Hole", "Hole001")
hole2.Profile = sketch14
hole2.ThreadType = "None"
hole2.setExpression("Diameter", "Params.hole2_diameter")
hole2.DepthType = "Dimension"
hole2.setExpression("Depth", "Params.hole2_depth")
hole2.DrillPoint = "Flat"
hole2.HoleCutType = "Counterbore"
hole2.setExpression("HoleCutDiameter", "Params.hole2_cbore_diameter")
hole2.setExpression("HoleCutDepth", "Params.hole2_cbore_depth")
hole2.Reversed = True

# Sketch on XZ plane
sketch15 = body.newObject("Sketcher::SketchObject", "Sketch014")
sketch15.AttachmentSupport = (doc.getObject("XZ_Plane"), [""])
sketch15.MapMode = "FlatFace"
sketch15.AttachmentOffset = App.Placement(V(0, 0, 15), App.Rotation())
sketch15.addGeometry(Part.Circle(V(19.4, 26.3, 0), V(0, 0, 1), 1.5), False)
sketch15.addGeometry(Part.Circle(V(-1.1, -24.7, 0), V(0, 0, 1), 1.5), False)
sketch15.addConstraint(Sketcher.Constraint("Equal", 0, 1))
sketch15.addConstraint(Sketcher.Constraint("Diameter", 0, Q("3 mm")))
sketch15.addConstraint(Sketcher.Constraint("DistanceY", 1, 3, 0, 3, Q("51 mm")))
sketch15.addConstraint(Sketcher.Constraint("DistanceX", 1, 3, 0, 3, Q("20.5 mm")))
sketch15.addConstraint(Sketcher.Constraint("DistanceX", -1, 1, 0, 3, Q("19.364829 mm")))
sketch15.addConstraint(Sketcher.Constraint("DistanceY", -1, 1, 0, 3, Q("26.317343 mm")))
sketch15.setExpression("Constraints[1]", "Params.sketch15_diameter")
doc.recompute()
hole3 = body.newObject("PartDesign::Hole", "Hole002")
hole3.Profile = sketch15
hole3.ThreadType = "None"
hole3.setExpression("Diameter", "Params.hole3_diameter")
hole3.DepthType = "Dimension"
hole3.setExpression("Depth", "Params.hole3_depth")
hole3.DrillPoint = "Angled"
hole3.DrillPointAngle = 118

# Sketch on XZ plane
sketch16 = body.newObject("Sketcher::SketchObject", "Sketch015")
sketch16.AttachmentSupport = (doc.getObject("XZ_Plane"), [""])
sketch16.MapMode = "FlatFace"
sketch16.AttachmentOffset = App.Placement(V(0, 0, -42.4), App.Rotation())
sketch16.addGeometry(Part.Circle(V(-0.1, -30.4, 0), V(0, 0, 1), 0.6), False)
sketch16.addGeometry(Part.Circle(V(4.5, -25.8, 0), V(0, 0, 1), 0.6), False)
sketch16.addConstraint(Sketcher.Constraint("Equal", 0, 1))
sketch16.addConstraint(Sketcher.Constraint("Diameter", 0, Q("1.25 mm")))
sketch16.addConstraint(Sketcher.Constraint("DistanceX", 0, 3, -1, 1, Q("0.132659 mm")))
sketch16.addConstraint(Sketcher.Constraint("DistanceY", 0, 3, -1, 1, Q("30.363071 mm")))
sketch16.addConstraint(Sketcher.Constraint("DistanceX", -1, 1, 1, 3, Q("4.463535 mm")))
sketch16.addConstraint(Sketcher.Constraint("DistanceY", 1, 3, -1, 1, Q("25.766877 mm")))
sketch16.setExpression("Constraints[1]", "Params.sketch16_diameter")
doc.recompute()
hole4 = body.newObject("PartDesign::Hole", "Hole003")
hole4.Profile = sketch16
hole4.ThreadType = "None"
hole4.setExpression("Diameter", "Params.hole4_diameter")
hole4.DepthType = "Dimension"
hole4.setExpression("Depth", "Params.hole4_depth")
hole4.DrillPoint = "Angled"
hole4.DrillPointAngle = 118
hole4.Reversed = True

# Sketch on XZ plane
sketch17 = body.newObject("Sketcher::SketchObject", "Sketch016")
sketch17.AttachmentSupport = (doc.getObject("XZ_Plane"), [""])
sketch17.MapMode = "FlatFace"
sketch17.AttachmentOffset = App.Placement(V(0, 0, -42.4), App.Rotation())
sketch17.addGeometry(Part.Circle(V(-4.1, 32.1, 0), V(0, 0, 1), 0.6), False)
sketch17.addGeometry(Part.Circle(V(-7.6, 28.6, 0), V(0, 0, 1), 0.6), False)
sketch17.addConstraint(Sketcher.Constraint("Equal", 0, 1))
sketch17.addConstraint(Sketcher.Constraint("Diameter", 0, Q("1.25 mm")))
sketch17.addConstraint(Sketcher.Constraint("DistanceX", 1, 3, 0, 3, Q("3.5 mm")))
sketch17.addConstraint(Sketcher.Constraint("DistanceY", 1, 3, 0, 3, Q("3.5 mm")))
sketch17.addConstraint(Sketcher.Constraint("DistanceX", 0, 3, -1, 1, Q("4.135171 mm")))
sketch17.addConstraint(Sketcher.Constraint("DistanceY", -1, 1, 0, 3, Q("32.107144 mm")))
sketch17.setExpression("Constraints[1]", "Params.sketch17_diameter")
doc.recompute()
hole5 = body.newObject("PartDesign::Hole", "Hole004")
hole5.Profile = sketch17
hole5.ThreadType = "None"
hole5.setExpression("Diameter", "Params.hole5_diameter")
hole5.DepthType = "Dimension"
hole5.setExpression("Depth", "Params.hole5_depth")
hole5.DrillPoint = "Angled"
hole5.DrillPointAngle = 118
hole5.Reversed = True

doc.recompute()
